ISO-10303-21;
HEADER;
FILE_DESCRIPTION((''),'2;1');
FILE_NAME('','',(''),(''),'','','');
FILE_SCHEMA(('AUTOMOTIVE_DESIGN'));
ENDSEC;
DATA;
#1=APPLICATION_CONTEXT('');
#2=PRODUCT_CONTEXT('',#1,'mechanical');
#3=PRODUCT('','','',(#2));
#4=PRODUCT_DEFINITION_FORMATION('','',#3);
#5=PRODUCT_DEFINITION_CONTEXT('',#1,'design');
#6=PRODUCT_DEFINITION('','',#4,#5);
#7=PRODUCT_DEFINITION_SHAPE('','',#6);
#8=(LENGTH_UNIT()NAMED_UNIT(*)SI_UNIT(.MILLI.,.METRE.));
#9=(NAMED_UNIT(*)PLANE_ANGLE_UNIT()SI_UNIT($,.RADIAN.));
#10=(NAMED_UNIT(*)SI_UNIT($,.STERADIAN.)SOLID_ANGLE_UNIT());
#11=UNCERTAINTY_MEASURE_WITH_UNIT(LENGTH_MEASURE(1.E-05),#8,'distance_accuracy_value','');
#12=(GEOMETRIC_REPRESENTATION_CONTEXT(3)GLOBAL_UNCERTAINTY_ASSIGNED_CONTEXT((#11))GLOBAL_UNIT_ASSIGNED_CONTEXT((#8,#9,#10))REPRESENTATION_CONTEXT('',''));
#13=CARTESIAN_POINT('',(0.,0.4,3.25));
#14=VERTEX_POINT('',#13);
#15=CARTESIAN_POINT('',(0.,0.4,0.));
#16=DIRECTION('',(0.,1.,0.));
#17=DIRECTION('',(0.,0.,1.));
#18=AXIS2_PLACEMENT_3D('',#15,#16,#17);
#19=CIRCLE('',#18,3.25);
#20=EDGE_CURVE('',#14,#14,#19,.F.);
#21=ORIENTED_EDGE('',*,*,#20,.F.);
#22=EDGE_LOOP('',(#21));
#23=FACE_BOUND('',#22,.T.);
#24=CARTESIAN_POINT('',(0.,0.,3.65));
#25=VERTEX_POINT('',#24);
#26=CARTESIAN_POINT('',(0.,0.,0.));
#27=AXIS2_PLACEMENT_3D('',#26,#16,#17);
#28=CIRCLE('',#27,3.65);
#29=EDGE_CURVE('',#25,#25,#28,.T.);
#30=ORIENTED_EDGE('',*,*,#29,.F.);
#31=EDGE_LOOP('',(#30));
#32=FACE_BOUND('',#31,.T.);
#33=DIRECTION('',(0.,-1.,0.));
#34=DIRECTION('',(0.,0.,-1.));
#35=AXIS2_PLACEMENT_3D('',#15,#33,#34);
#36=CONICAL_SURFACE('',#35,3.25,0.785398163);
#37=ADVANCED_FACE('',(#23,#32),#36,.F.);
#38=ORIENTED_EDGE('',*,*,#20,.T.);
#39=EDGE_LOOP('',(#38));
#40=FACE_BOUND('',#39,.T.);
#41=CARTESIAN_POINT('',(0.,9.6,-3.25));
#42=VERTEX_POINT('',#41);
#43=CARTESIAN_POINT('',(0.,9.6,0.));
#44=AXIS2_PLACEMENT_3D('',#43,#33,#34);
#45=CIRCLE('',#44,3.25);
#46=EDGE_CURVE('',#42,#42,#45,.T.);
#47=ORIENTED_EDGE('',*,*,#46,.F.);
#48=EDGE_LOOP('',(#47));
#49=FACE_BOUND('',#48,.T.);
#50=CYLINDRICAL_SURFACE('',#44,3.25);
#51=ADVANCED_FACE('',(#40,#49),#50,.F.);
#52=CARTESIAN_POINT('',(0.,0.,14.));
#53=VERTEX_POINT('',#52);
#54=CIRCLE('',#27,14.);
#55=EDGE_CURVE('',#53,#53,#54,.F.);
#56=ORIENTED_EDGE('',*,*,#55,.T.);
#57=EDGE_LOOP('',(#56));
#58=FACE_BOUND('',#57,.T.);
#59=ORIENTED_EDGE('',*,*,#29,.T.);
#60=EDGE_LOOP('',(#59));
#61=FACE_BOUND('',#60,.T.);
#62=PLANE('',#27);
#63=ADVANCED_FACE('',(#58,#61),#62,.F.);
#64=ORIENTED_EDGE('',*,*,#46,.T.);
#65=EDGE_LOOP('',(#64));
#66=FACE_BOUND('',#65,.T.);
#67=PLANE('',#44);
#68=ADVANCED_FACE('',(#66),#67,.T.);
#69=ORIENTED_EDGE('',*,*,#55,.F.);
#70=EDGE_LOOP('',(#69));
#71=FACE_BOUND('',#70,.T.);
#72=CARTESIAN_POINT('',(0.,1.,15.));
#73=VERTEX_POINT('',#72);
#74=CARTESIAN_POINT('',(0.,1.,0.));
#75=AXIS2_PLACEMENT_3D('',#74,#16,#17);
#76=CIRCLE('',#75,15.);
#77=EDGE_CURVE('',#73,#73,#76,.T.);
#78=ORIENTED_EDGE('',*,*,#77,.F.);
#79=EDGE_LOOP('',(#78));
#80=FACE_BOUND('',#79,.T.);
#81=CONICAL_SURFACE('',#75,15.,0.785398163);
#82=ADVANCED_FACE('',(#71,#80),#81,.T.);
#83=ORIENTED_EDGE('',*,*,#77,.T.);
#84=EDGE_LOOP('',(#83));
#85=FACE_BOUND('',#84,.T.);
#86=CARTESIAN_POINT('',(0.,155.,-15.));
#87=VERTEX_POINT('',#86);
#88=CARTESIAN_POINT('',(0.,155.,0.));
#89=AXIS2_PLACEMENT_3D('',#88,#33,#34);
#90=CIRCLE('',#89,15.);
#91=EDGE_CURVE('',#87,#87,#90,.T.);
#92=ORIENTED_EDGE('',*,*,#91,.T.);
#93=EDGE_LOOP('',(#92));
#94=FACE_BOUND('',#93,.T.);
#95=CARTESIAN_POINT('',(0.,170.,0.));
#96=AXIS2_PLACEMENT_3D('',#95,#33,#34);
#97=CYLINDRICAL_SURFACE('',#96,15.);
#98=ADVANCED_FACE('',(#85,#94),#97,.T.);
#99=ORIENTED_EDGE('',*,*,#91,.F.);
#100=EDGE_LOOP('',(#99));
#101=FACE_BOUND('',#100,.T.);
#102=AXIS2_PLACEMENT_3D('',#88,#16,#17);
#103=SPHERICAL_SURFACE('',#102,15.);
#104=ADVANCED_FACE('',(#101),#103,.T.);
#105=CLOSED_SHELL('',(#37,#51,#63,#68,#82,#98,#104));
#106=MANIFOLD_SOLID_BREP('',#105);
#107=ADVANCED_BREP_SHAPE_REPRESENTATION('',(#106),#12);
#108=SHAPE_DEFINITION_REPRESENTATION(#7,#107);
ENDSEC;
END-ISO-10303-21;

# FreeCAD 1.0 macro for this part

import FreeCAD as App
import Part
import Sketcher
from FreeCAD import Vector


def edges_at(feature, points):
    """Names of the edges that pass closest to the given points."""
    edges = feature.Shape.Edges
    near = lambda p: min(range(len(edges)), key=lambda i: edges[i].distToShape(Part.Vertex(*p))[0])
    return sorted({f"Edge{near(p) + 1}" for p in points})

doc = App.newDocument("Part")
params = doc.addObject("Spreadsheet::Sheet", "Params")
for row, (alias, value) in enumerate([
    ("sketch1_diameter", "30 mm"),
    ("pad1_length", "170 mm"),
    ("fillet_radius", "15 mm"),
    ("sketch2_diameter", "6.5 mm"),
    ("pocket1_length", "9.6 mm"),
    ("chamfer_size", "0.4 mm"),
    ("chamfer2_size", "1 mm"),
], start=1):
    params.set(f"A{row}", alias)
    params.set(f"B{row}", "=" + value)
    params.setAlias(f"B{row}", alias)

body = doc.addObject("PartDesign::Body", "Body")

# Sketch on XZ plane
sketch1 = body.newObject("Sketcher::SketchObject", "Sketch")
sketch1.AttachmentSupport = (doc.getObject("XZ_Plane"), [""])
sketch1.MapMode = "FlatFace"
sketch1.addGeometry(Part.Circle(Vector(0, 0, 0), Vector(0, 0, 1), 15), False)
sketch1.addConstraint(Sketcher.Constraint("Coincident", 0, 3, -1, 1))
sketch1.addConstraint(Sketcher.Constraint("Diameter", 0, 30.0))
sketch1.setExpression("Constraints[1]", "Params.sketch1_diameter")
pad1 = body.newObject("PartDesign::Pad", "Pad")
pad1.Profile = sketch1
pad1.setExpression("Length", "Params.pad1_length")
pad1.Reversed = True
doc.recompute()

fillet = body.newObject("PartDesign::Fillet", "Fillet")
fillet.Base = (pad1, edges_at(pad1, [(0, 170, -15)]))
fillet.setExpression("Radius", "Params.fillet_radius")

# Sketch on XZ plane
sketch2 = body.newObject("Sketcher::SketchObject", "Sketch001")
sketch2.AttachmentSupport = (doc.getObject("XZ_Plane"), [""])
sketch2.MapMode = "FlatFace"
sketch2.addGeometry(Part.Circle(Vector(0, 0, 0), Vector(0, 0, 1), 3.25), False)
sketch2.addConstraint(Sketcher.Constraint("Coincident", 0, 3, -1, 1))
sketch2.addConstraint(Sketcher.Constraint("Diameter", 0, 6.5))
sketch2.setExpression("Constraints[1]", "Params.sketch2_diameter")
pocket1 = body.newObject("PartDesign::Pocket", "Pocket")
pocket1.Profile = sketch2
pocket1.setExpression("Length", "Params.pocket1_length")
doc.recompute()

chamfer = body.newObject("PartDesign::Chamfer", "Chamfer")
chamfer.Base = (pocket1, edges_at(pocket1, [(0, 0, 3.25)]))
chamfer.setExpression("Size", "Params.chamfer_size")
doc.recompute()

chamfer2 = body.newObject("PartDesign::Chamfer", "Chamfer001")
chamfer2.Base = (chamfer, edges_at(chamfer, [(0, 0, -15)]))
chamfer2.setExpression("Size", "Params.chamfer2_size")

doc.recompute()
